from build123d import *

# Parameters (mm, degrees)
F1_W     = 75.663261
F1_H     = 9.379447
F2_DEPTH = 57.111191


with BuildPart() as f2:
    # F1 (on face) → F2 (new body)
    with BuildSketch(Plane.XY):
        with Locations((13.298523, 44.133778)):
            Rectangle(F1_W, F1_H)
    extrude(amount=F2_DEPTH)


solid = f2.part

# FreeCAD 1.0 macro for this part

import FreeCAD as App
import Part
import Sketcher
from FreeCAD import Vector
Q = App.Units.Quantity

doc = App.newDocument("Part")
params = doc.addObject("Spreadsheet::Sheet", "Params")
for row, (alias, value) in enumerate([
    ("pad1_length", "57.111191 mm"),
], start=1):
    params.set(f"A{row}", alias)
    params.set(f"B{row}", "=" + value)
    params.setAlias(f"B{row}", alias)

body = doc.addObject("PartDesign::Body", "Body")

# Sketch on XY plane
sketch1 = body.newObject("Sketcher::SketchObject", "Sketch")
sketch1.AttachmentSupport = (doc.getObject("XY_Plane"), [""])
sketch1.MapMode = "FlatFace"
sketch1.addGeometry([
    Part.LineSegment(Vector(-25, 49, 0), Vector(-25, 39, 0)),
    Part.LineSegment(Vector(-25, 39, 0), Vector(51, 39, 0)),
    Part.LineSegment(Vector(51, 39, 0), Vector(51, 49, 0)),
    Part.LineSegment(Vector(51, 49, 0), Vector(-25, 49, 0)),
], False)
sketch1.addConstraint([
    Sketcher.Constraint("Coincident", 0, 2, 1, 1),
    Sketcher.Constraint("Coincident", 1, 2, 2, 1),
    Sketcher.Constraint("Coincident", 2, 2, 3, 1),
    Sketcher.Constraint("Coincident", 3, 2, 0, 1),
    Sketcher.Constraint("Vertical", 0),
    Sketcher.Constraint("Horizontal", 1),
    Sketcher.Constraint("Vertical", 2),
    Sketcher.Constraint("Horizontal", 3),
    Sketcher.Constraint("DistanceX", 1, 1, 1, 2, Q("75.663261 mm")),
    Sketcher.Constraint("DistanceY", -1, 1, 2, 2, Q("48.823501 mm")),
    Sketcher.Constraint("DistanceY", 0, 2, 0, 1, Q("9.379447 mm")),
    Sketcher.Constraint("DistanceX", 0, 2, -1, 1, Q("24.533107 mm")),
])
pad1 = body.newObject("PartDesign::Pad", "Pad")
pad1.Profile = sketch1
pad1.setExpression("Length", "Params.pad1_length")

doc.recompute()
